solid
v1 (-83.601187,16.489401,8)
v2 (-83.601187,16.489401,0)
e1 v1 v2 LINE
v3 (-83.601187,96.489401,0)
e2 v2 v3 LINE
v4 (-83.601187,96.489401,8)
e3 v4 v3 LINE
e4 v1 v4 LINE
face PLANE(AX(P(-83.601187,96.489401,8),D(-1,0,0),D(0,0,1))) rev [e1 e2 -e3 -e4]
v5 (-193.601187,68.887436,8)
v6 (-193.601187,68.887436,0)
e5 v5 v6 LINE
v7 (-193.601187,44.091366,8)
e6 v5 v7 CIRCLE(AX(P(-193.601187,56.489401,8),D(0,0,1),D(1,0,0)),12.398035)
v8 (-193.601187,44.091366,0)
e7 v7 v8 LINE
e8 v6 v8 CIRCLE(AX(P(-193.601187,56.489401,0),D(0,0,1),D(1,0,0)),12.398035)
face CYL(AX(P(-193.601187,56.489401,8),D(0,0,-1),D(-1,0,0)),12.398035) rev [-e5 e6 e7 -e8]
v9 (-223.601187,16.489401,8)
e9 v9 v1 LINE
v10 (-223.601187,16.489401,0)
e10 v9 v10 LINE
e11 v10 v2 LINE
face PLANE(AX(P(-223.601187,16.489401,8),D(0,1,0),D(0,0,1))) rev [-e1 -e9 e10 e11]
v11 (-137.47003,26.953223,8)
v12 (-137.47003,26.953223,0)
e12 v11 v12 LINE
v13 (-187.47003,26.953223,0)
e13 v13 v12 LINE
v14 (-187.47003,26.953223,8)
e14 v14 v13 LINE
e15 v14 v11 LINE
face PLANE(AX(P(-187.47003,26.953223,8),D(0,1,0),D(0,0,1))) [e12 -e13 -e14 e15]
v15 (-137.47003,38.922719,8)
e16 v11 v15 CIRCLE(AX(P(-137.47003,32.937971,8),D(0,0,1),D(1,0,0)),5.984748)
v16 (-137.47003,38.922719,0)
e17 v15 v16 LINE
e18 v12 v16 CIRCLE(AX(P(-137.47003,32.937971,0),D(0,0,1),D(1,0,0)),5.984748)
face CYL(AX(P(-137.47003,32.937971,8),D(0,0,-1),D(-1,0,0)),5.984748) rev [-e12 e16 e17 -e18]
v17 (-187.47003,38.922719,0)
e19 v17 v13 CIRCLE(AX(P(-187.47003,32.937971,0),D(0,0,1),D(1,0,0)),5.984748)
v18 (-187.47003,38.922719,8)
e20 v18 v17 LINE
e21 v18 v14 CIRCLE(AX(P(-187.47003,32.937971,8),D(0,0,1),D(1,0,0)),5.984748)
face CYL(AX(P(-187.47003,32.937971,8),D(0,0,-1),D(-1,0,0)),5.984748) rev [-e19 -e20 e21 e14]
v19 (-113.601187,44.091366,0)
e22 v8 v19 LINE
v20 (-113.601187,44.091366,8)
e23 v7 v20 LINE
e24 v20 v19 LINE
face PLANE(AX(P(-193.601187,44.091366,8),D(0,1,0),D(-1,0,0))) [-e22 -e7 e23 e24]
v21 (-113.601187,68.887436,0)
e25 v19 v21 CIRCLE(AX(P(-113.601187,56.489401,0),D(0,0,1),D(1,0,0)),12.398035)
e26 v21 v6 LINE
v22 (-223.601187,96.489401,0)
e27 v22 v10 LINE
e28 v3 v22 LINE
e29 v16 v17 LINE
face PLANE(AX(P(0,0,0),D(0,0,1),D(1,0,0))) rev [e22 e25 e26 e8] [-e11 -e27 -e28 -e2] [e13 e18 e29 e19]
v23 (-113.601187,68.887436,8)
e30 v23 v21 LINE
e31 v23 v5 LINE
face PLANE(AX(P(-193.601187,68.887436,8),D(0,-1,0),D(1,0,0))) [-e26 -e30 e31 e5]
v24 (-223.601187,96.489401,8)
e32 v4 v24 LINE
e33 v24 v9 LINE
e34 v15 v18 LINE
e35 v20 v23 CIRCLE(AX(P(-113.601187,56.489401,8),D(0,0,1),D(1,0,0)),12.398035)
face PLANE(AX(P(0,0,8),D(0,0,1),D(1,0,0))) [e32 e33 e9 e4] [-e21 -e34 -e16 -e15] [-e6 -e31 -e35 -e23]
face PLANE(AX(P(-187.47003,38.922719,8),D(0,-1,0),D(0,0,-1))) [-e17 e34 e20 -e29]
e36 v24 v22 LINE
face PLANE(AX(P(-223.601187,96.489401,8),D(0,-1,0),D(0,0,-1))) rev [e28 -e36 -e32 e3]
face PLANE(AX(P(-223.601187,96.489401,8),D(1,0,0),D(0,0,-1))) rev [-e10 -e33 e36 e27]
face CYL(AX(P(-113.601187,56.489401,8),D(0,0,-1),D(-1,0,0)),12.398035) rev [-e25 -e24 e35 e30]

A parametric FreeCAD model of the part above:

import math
import FreeCAD as App
import Part
import Sketcher
Q = App.Units.Quantity

doc = App.newDocument("Part")
params = doc.addObject("Spreadsheet::Sheet", "Params")
for row, (alias, value) in enumerate([
    ("sketch1_width", "140 mm"),
    ("sketch1_width2", "50 mm"),
    ("sketch1_width3", "80 mm"),
    ("pad1_length", "8 mm"),
], start=1):
    params.set(f"A{row}", alias)
    params.set(f"B{row}", "=" + value)
    params.setAlias(f"B{row}", alias)

body = doc.addObject("PartDesign::Body", "Body")

sketch1 = body.newObject("Sketcher::SketchObject", "Sketch")
sketch1.AttachmentSupport = (doc.getObject("XY_Plane"), [""])
sketch1.MapMode = "FlatFace"
sketch1.addGeometry([
    Part.LineSegment(App.Vector(-224, 96, 0), App.Vector(-224, 16, 0)),
    Part.LineSegment(App.Vector(-224, 16, 0), App.Vector(-84, 16, 0)),
    Part.LineSegment(App.Vector(-84, 16, 0), App.Vector(-84, 96, 0)),
    Part.LineSegment(App.Vector(-84, 96, 0), App.Vector(-224, 96, 0)),
    Part.ArcOfCircle(Part.Circle(App.Vector(-187, 33, 0), App.Vector(0, 0, 1), 6), math.radians(90), math.radians(270)),
    Part.LineSegment(App.Vector(-187, 39, 0), App.Vector(-137, 39, 0)),
    Part.ArcOfCircle(Part.Circle(App.Vector(-137, 33, 0), App.Vector(0, 0, 1), 6), math.radians(-90), math.radians(90)),
    Part.LineSegment(App.Vector(-137, 27, 0), App.Vector(-187, 27, 0)),
    Part.ArcOfCircle(Part.Circle(App.Vector(-194, 56, 0), App.Vector(0, 0, 1), 12), math.radians(90), math.radians(270)),
    Part.LineSegment(App.Vector(-194, 69, 0), App.Vector(-114, 69, 0)),
    Part.ArcOfCircle(Part.Circle(App.Vector(-114, 56, 0), App.Vector(0, 0, 1), 12), math.radians(-90), math.radians(90)),
    Part.LineSegment(App.Vector(-114, 44, 0), App.Vector(-194, 44, 0)),
], False)
sketch1.addConstraint([
    Sketcher.Constraint("Coincident", 0, 2, 1, 1),
    Sketcher.Constraint("Coincident", 1, 2, 2, 1),
    Sketcher.Constraint("Coincident", 2, 2, 3, 1),
    Sketcher.Constraint("Coincident", 3, 2, 0, 1),
    Sketcher.Constraint("Tangent", 4, 1, 5, 1),
    Sketcher.Constraint("Tangent", 5, 2, 6, 2),
    Sketcher.Constraint("Tangent", 6, 1, 7, 1),
    Sketcher.Constraint("Tangent", 7, 2, 4, 2),
    Sketcher.Constraint("Tangent", 8, 1, 9, 1),
    Sketcher.Constraint("Tangent", 9, 2, 10, 2),
    Sketcher.Constraint("Tangent", 10, 1, 11, 1),
    Sketcher.Constraint("Tangent", 11, 2, 8, 2),
    Sketcher.Constraint("Vertical", 0),
    Sketcher.Constraint("Horizontal", 1),
    Sketcher.Constraint("Vertical", 2),
    Sketcher.Constraint("Horizontal", 3),
    Sketcher.Constraint("Horizontal", 5),
    Sketcher.Constraint("Horizontal", 7),
    Sketcher.Constraint("Horizontal", 9),
    Sketcher.Constraint("Horizontal", 11),
    Sketcher.Constraint("Equal", 11, 0),
    Sketcher.Constraint("DistanceX", 1, 1, 1, 2, Q("140 mm")),
    Sketcher.Constraint("DistanceX", 5, 1, 5, 2, Q("50 mm")),
    Sketcher.Constraint("DistanceX", 9, 1, 9, 2, Q("80 mm")),
    Sketcher.Constraint("DistanceX", 0, 2, 8, 3, Q("30 mm")),
    Sketcher.Constraint("DistanceY", 0, 2, 8, 3, Q("40 mm")),
    Sketcher.Constraint("Radius", 4, Q("5.984748 mm")),
    Sketcher.Constraint("Radius", 8, Q("12.398035 mm")),
    Sketcher.Constraint("DistanceY", -1, 1, 8, 3, Q("56.489401 mm")),
    Sketcher.Constraint("DistanceX", 4, 3, -1, 1, Q("187.47003 mm")),
    Sketcher.Constraint("DistanceY", -1, 1, 4, 3, Q("32.937971 mm")),
    Sketcher.Constraint("DistanceX", 8, 3, -1, 1, Q("193.601187 mm")),
])
sketch1.setExpression("Constraints[21]", "Params.sketch1_width")
sketch1.setExpression("Constraints[22]", "Params.sketch1_width2")
sketch1.setExpression("Constraints[23]", "Params.sketch1_width3")
pad1 = body.newObject("PartDesign::Pad", "Pad")
pad1.Profile = sketch1
pad1.setExpression("Length", "Params.pad1_length")

doc.recompute()
